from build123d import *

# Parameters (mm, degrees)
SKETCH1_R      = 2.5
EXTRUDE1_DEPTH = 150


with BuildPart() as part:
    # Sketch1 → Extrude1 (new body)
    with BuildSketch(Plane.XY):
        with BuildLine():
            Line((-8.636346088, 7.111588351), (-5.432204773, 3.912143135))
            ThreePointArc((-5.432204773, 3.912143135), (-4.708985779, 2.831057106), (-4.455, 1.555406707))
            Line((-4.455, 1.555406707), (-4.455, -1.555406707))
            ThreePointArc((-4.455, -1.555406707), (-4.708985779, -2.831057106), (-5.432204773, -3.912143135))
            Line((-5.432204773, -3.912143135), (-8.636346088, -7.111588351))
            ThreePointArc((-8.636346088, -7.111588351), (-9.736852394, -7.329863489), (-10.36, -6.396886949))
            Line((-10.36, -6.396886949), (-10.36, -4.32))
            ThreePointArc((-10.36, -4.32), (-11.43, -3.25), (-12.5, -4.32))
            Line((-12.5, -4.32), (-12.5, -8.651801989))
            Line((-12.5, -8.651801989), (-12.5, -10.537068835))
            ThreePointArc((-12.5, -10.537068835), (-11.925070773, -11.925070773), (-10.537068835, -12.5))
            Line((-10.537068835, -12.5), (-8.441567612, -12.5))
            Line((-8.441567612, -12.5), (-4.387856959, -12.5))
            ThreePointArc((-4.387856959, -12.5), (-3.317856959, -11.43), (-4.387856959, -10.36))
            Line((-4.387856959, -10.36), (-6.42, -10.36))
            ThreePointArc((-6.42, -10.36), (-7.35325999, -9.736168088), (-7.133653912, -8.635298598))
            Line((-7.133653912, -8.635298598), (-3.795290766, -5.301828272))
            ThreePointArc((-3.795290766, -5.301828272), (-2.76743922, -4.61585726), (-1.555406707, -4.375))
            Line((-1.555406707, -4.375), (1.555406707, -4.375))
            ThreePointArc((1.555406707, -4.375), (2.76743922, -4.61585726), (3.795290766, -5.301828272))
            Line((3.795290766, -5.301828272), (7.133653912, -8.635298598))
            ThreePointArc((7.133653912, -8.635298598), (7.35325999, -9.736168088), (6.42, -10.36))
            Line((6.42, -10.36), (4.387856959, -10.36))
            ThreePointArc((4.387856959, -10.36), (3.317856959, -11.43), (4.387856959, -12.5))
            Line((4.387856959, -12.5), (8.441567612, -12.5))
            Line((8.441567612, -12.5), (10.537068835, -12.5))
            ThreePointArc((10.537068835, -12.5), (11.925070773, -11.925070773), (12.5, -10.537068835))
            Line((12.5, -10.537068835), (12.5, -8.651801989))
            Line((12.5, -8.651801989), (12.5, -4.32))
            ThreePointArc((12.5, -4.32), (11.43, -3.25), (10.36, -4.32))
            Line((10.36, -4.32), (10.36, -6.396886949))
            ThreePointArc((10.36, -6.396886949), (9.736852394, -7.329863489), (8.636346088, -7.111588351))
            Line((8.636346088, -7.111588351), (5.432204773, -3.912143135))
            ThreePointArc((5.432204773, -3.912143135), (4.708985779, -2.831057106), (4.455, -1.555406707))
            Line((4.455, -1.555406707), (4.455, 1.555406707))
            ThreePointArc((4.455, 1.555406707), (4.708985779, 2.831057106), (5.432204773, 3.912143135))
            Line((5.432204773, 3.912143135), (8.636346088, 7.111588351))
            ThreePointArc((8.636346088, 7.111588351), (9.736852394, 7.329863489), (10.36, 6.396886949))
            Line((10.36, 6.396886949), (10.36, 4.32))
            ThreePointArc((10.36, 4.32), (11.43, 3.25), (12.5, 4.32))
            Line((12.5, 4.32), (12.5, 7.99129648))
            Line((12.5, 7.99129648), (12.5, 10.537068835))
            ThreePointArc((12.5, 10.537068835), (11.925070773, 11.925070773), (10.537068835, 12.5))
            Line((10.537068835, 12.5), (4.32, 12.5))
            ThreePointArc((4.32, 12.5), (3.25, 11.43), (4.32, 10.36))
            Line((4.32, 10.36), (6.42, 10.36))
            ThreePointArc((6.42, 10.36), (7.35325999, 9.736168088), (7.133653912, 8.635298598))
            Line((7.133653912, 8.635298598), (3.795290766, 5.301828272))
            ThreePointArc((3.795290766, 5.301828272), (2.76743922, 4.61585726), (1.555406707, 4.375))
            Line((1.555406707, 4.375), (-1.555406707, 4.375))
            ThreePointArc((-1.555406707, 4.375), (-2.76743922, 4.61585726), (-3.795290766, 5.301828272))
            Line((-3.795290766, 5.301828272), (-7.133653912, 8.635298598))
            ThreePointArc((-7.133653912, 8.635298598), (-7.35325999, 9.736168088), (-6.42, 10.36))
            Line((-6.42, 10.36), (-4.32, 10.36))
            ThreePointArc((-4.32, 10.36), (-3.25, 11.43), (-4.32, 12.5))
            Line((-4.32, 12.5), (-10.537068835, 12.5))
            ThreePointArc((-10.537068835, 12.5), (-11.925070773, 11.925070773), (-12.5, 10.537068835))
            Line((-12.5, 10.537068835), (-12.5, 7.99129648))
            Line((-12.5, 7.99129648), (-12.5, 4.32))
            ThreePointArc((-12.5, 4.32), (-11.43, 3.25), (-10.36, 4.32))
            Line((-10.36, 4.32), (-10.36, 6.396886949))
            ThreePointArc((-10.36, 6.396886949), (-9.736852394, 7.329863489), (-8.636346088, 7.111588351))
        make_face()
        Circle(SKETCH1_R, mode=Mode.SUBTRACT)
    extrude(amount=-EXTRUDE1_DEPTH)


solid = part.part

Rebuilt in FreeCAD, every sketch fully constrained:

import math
import FreeCAD as App
import Part
import Sketcher
from FreeCAD import Vector
Q = App.Units.Quantity

doc = App.newDocument("Part")
body = doc.addObject("PartDesign::Body", "Body")

sketch1 = body.newObject("Sketcher::SketchObject", "Sketch")
sketch1.AttachmentSupport = (doc.getObject("XY_Plane"), [""])
sketch1.MapMode = "FlatFace"
sketch1.addGeometry([
    Part.LineSegment(Vector(-8.636346, 7.111588, 0), Vector(-5.432205, 3.912143, 0)),
    Part.ArcOfCircle(Part.Circle(Vector(-7.785487, 1.555407, 0), Vector(0, 0, 1), 3.330487), math.radians(0), math.radians(45.042018)),
    Part.LineSegment(Vector(-4.455, 1.555407, 0), Vector(-4.455, -1.555407, 0)),
    Part.ArcOfCircle(Part.Circle(Vector(-7.785487, -1.555407, 0), Vector(0, 0, 1), 3.330487), math.radians(-45.042018), math.radians(0)),
    Part.LineSegment(Vector(-5.432205, -3.912143, 0), Vector(-8.636346, -7.111588, 0)),
    Part.ArcOfCircle(Part.Circle(Vector(-9.35, -6.396887, 0), Vector(0, 0, 1), 1.01), math.radians(-180), math.radians(-45.042018)),
    Part.LineSegment(Vector(-10.36, -6.396887, 0), Vector(-10.36, -4.32, 0)),
    Part.ArcOfCircle(Part.Circle(Vector(-11.43, -4.32, 0), Vector(0, 0, 1), 1.07), math.radians(0), math.radians(180)),
    Part.LineSegment(Vector(-12.5, -4.32, 0), Vector(-12.5, -10.537069, 0)),
    Part.ArcOfCircle(Part.Circle(Vector(-10.537069, -10.537069, 0), Vector(0, 0, 1), 1.962931), math.radians(180), math.radians(270)),
    Part.LineSegment(Vector(-10.537069, -12.5, 0), Vector(-4.387857, -12.5, 0)),
    Part.ArcOfCircle(Part.Circle(Vector(-4.387857, -11.43, 0), Vector(0, 0, 1), 1.07), math.radians(-90), math.radians(90)),
    Part.LineSegment(Vector(-4.387857, -10.36, 0), Vector(-6.42, -10.36, 0)),
    Part.ArcOfCircle(Part.Circle(Vector(-6.42, -9.35, 0), Vector(0, 0, 1), 1.01), math.radians(134.957982), math.radians(270)),
    Part.LineSegment(Vector(-7.133654, -8.635299, 0), Vector(-3.795291, -5.301828, 0)),
    Part.ArcOfCircle(Part.Circle(Vector(-1.555407, -7.545, 0), Vector(0, 0, 1), 3.17), math.radians(90), math.radians(134.957982)),
    Part.LineSegment(Vector(-1.555407, -4.375, 0), Vector(1.555407, -4.375, 0)),
    Part.ArcOfCircle(Part.Circle(Vector(1.555407, -7.545, 0), Vector(0, 0, 1), 3.17), math.radians(45.042018), math.radians(90)),
    Part.LineSegment(Vector(3.795291, -5.301828, 0), Vector(7.133654, -8.635299, 0)),
    Part.ArcOfCircle(Part.Circle(Vector(6.42, -9.35, 0), Vector(0, 0, 1), 1.01), math.radians(-90), math.radians(45.042018)),
    Part.LineSegment(Vector(6.42, -10.36, 0), Vector(4.387857, -10.36, 0)),
    Part.ArcOfCircle(Part.Circle(Vector(4.387857, -11.43, 0), Vector(0, 0, 1), 1.07), math.radians(90), math.radians(270)),
    Part.LineSegment(Vector(4.387857, -12.5, 0), Vector(10.537069, -12.5, 0)),
    Part.ArcOfCircle(Part.Circle(Vector(10.537069, -10.537069, 0), Vector(0, 0, 1), 1.962931), math.radians(-90), math.radians(0)),
    Part.LineSegment(Vector(12.5, -10.537069, 0), Vector(12.5, -4.32, 0)),
    Part.ArcOfCircle(Part.Circle(Vector(11.43, -4.32, 0), Vector(0, 0, 1), 1.07), math.radians(0), math.radians(180)),
    Part.LineSegment(Vector(10.36, -4.32, 0), Vector(10.36, -6.396887, 0)),
    Part.ArcOfCircle(Part.Circle(Vector(9.35, -6.396887, 0), Vector(0, 0, 1), 1.01), math.radians(-134.957982), math.radians(0)),
    Part.LineSegment(Vector(8.636346, -7.111588, 0), Vector(5.432205, -3.912143, 0)),
    Part.ArcOfCircle(Part.Circle(Vector(7.785487, -1.555407, 0), Vector(0, 0, 1), 3.330487), math.radians(180), math.radians(225.042018)),
    Part.LineSegment(Vector(4.455, -1.555407, 0), Vector(4.455, 1.555407, 0)),
    Part.ArcOfCircle(Part.Circle(Vector(7.785487, 1.555407, 0), Vector(0, 0, 1), 3.330487), math.radians(134.957982), math.radians(180)),
    Part.LineSegment(Vector(5.432205, 3.912143, 0), Vector(8.636346, 7.111588, 0)),
    Part.ArcOfCircle(Part.Circle(Vector(9.35, 6.396887, 0), Vector(0, 0, 1), 1.01), math.radians(0), math.radians(134.957982)),
    Part.LineSegment(Vector(10.36, 6.396887, 0), Vector(10.36, 4.32, 0)),
    Part.ArcOfCircle(Part.Circle(Vector(11.43, 4.32, 0), Vector(0, 0, 1), 1.07), math.radians(180), math.radians(360)),
    Part.LineSegment(Vector(12.5, 4.32, 0), Vector(12.5, 10.537069, 0)),
    Part.ArcOfCircle(Part.Circle(Vector(10.537069, 10.537069, 0), Vector(0, 0, 1), 1.962931), math.radians(0), math.radians(90)),
    Part.LineSegment(Vector(10.537069, 12.5, 0), Vector(4.32, 12.5, 0)),
    Part.ArcOfCircle(Part.Circle(Vector(4.32, 11.43, 0), Vector(0, 0, 1), 1.07), math.radians(90), math.radians(270)),
    Part.LineSegment(Vector(4.32, 10.36, 0), Vector(6.42, 10.36, 0)),
    Part.ArcOfCircle(Part.Circle(Vector(6.42, 9.35, 0), Vector(0, 0, 1), 1.01), math.radians(-45.042018), math.radians(90)),
    Part.LineSegment(Vector(7.133654, 8.635299, 0), Vector(3.795291, 5.301828, 0)),
    Part.ArcOfCircle(Part.Circle(Vector(1.555407, 7.545, 0), Vector(0, 0, 1), 3.17), math.radians(-90), math.radians(-45.042018)),
    Part.LineSegment(Vector(1.555407, 4.375, 0), Vector(-1.555407, 4.375, 0)),
    Part.ArcOfCircle(Part.Circle(Vector(-1.555407, 7.545, 0), Vector(0, 0, 1), 3.17), math.radians(-134.957982), math.radians(-90)),
    Part.LineSegment(Vector(-3.795291, 5.301828, 0), Vector(-7.133654, 8.635299, 0)),
    Part.ArcOfCircle(Part.Circle(Vector(-6.42, 9.35, 0), Vector(0, 0, 1), 1.01), math.radians(90), math.radians(225.042018)),
    Part.LineSegment(Vector(-6.42, 10.36, 0), Vector(-4.32, 10.36, 0)),
    Part.ArcOfCircle(Part.Circle(Vector(-4.32, 11.43, 0), Vector(0, 0, 1), 1.07), math.radians(-90), math.radians(90)),
    Part.LineSegment(Vector(-4.32, 12.5, 0), Vector(-10.537069, 12.5, 0)),
    Part.ArcOfCircle(Part.Circle(Vector(-10.537069, 10.537069, 0), Vector(0, 0, 1), 1.962931), math.radians(90), math.radians(180)),
    Part.LineSegment(Vector(-12.5, 10.537069, 0), Vector(-12.5, 4.32, 0)),
    Part.ArcOfCircle(Part.Circle(Vector(-11.43, 4.32, 0), Vector(0, 0, 1), 1.07), math.radians(180), math.radians(360)),
    Part.LineSegment(Vector(-10.36, 4.32, 0), Vector(-10.36, 6.396887, 0)),
    Part.ArcOfCircle(Part.Circle(Vector(-9.35, 6.396887, 0), Vector(0, 0, 1), 1.01), math.radians(45.042018), math.radians(180)),
    Part.Circle(Vector(0, 0, 0), Vector(0, 0, 1), 2.5),
], False)
sketch1.addConstraint([
    Sketcher.Constraint("Tangent", 0, 2, 1, 2),
    Sketcher.Constraint("Tangent", 1, 1, 2, 1),
    Sketcher.Constraint("Tangent", 2, 2, 3, 2),
    Sketcher.Constraint("Tangent", 3, 1, 4, 1),
    Sketcher.Constraint("Tangent", 4, 2, 5, 2),
    Sketcher.Constraint("Tangent", 5, 1, 6, 1),
    Sketcher.Constraint("Tangent", 6, 2, 7, 1),
    Sketcher.Constraint("Tangent", 7, 2, 8, 1),
    Sketcher.Constraint("Tangent", 8, 2, 9, 1),
    Sketcher.Constraint("Tangent", 9, 2, 10, 1),
    Sketcher.Constraint("Tangent", 10, 2, 11, 1),
    Sketcher.Constraint("Tangent", 11, 2, 12, 1),
    Sketcher.Constraint("Tangent", 12, 2, 13, 2),
    Sketcher.Constraint("Tangent", 13, 1, 14, 1),
    Sketcher.Constraint("Tangent", 14, 2, 15, 2),
    Sketcher.Constraint("Tangent", 15, 1, 16, 1),
    Sketcher.Constraint("Tangent", 16, 2, 17, 2),
    Sketcher.Constraint("Tangent", 17, 1, 18, 1),
    Sketcher.Constraint("Tangent", 18, 2, 19, 2),
    Sketcher.Constraint("Tangent", 19, 1, 20, 1),
    Sketcher.Constraint("Tangent", 20, 2, 21, 1),
    Sketcher.Constraint("Tangent", 21, 2, 22, 1),
    Sketcher.Constraint("Tangent", 22, 2, 23, 1),
    Sketcher.Constraint("Tangent", 23, 2, 24, 1),
    Sketcher.Constraint("Tangent", 24, 2, 25, 1),
    Sketcher.Constraint("Tangent", 25, 2, 26, 1),
    Sketcher.Constraint("Tangent", 26, 2, 27, 2),
    Sketcher.Constraint("Tangent", 27, 1, 28, 1),
    Sketcher.Constraint("Tangent", 28, 2, 29, 2),
    Sketcher.Constraint("Tangent", 29, 1, 30, 1),
    Sketcher.Constraint("Tangent", 30, 2, 31, 2),
    Sketcher.Constraint("Tangent", 31, 1, 32, 1),
    Sketcher.Constraint("Tangent", 32, 2, 33, 2),
    Sketcher.Constraint("Tangent", 33, 1, 34, 1),
    Sketcher.Constraint("Tangent", 34, 2, 35, 1),
    Sketcher.Constraint("Tangent", 35, 2, 36, 1),
    Sketcher.Constraint("Tangent", 36, 2, 37, 1),
    Sketcher.Constraint("Tangent", 37, 2, 38, 1),
    Sketcher.Constraint("Tangent", 38, 2, 39, 1),
    Sketcher.Constraint("Tangent", 39, 2, 40, 1),
    Sketcher.Constraint("Tangent", 40, 2, 41, 2),
    Sketcher.Constraint("Tangent", 41, 1, 42, 1),
    Sketcher.Constraint("Tangent", 42, 2, 43, 2),
    Sketcher.Constraint("Tangent", 43, 1, 44, 1),
    Sketcher.Constraint("Tangent", 44, 2, 45, 2),
    Sketcher.Constraint("Tangent", 45, 1, 46, 1),
    Sketcher.Constraint("Tangent", 46, 2, 47, 2),
    Sketcher.Constraint("Tangent", 47, 1, 48, 1),
    Sketcher.Constraint("Tangent", 48, 2, 49, 1),
    Sketcher.Constraint("Tangent", 49, 2, 50, 1),
    Sketcher.Constraint("Tangent", 50, 2, 51, 1),
    Sketcher.Constraint("Tangent", 51, 2, 52, 1),
    Sketcher.Constraint("Tangent", 52, 2, 53, 1),
    Sketcher.Constraint("Tangent", 53, 2, 54, 1),
    Sketcher.Constraint("Tangent", 54, 2, 55, 2),
    Sketcher.Constraint("Tangent", 55, 1, 0, 1),
    Sketcher.Constraint("Vertical", 2),
    Sketcher.Constraint("Vertical", 6),
    Sketcher.Constraint("Vertical", 8),
    Sketcher.Constraint("Horizontal", 10),
    Sketcher.Constraint("Horizontal", 12),
    Sketcher.Constraint("Horizontal", 16),
    Sketcher.Constraint("Horizontal", 20),
    Sketcher.Constraint("Horizontal", 22),
    Sketcher.Constraint("Vertical", 24),
    Sketcher.Constraint("Vertical", 26),
    Sketcher.Constraint("Vertical", 30),
    Sketcher.Constraint("Vertical", 34),
    Sketcher.Constraint("Vertical", 36),
    Sketcher.Constraint("Horizontal", 38),
    Sketcher.Constraint("Horizontal", 40),
    Sketcher.Constraint("Horizontal", 44),
    Sketcher.Constraint("Horizontal", 48),
    Sketcher.Constraint("Horizontal", 50),
    Sketcher.Constraint("Vertical", 52),
    Sketcher.Constraint("Vertical", 54),
    Sketcher.Constraint("Coincident", 56, 3, -1, 1),
    Sketcher.Constraint("Equal", 1, 3),
    Sketcher.Constraint("Equal", 7, 11),
    Sketcher.Constraint("Equal", 5, 13),
    Sketcher.Constraint("Equal", 15, 17),
    Sketcher.Constraint("Equal", 13, 19),
    Sketcher.Constraint("Equal", 11, 21),
    Sketcher.Constraint("Equal", 9, 23),
    Sketcher.Constraint("Equal", 21, 25),
    Sketcher.Constraint("Equal", 19, 27),
    Sketcher.Constraint("Equal", 3, 29),
    Sketcher.Constraint("Equal", 29, 31),
    Sketcher.Constraint("Equal", 27, 33),
    Sketcher.Constraint("Equal", 25, 35),
    Sketcher.Constraint("Equal", 23, 37),
    Sketcher.Constraint("Equal", 35, 39),
    Sketcher.Constraint("Equal", 33, 41),
    Sketcher.Constraint("Equal", 17, 43),
    Sketcher.Constraint("Equal", 43, 45),
    Sketcher.Constraint("Equal", 41, 47),
    Sketcher.Constraint("Equal", 39, 49),
    Sketcher.Constraint("Equal", 37, 51),
    Sketcher.Constraint("Equal", 49, 53),
    Sketcher.Constraint("Equal", 47, 55),
    Sketcher.Constraint("Symmetric", 1, 3, 29, 3, -1, 1),
    Sketcher.Constraint("Symmetric", 5, 3, 33, 3, -1, 1),
    Sketcher.Constraint("Symmetric", 13, 3, 41, 3, -1, 1),
    Sketcher.Constraint("Symmetric", 15, 3, 43, 3, -1, 1),
    Sketcher.Constraint("Symmetric", 19, 3, 47, 3, -1, 1),
    Sketcher.Constraint("Symmetric", 25, 3, 53, 3, -1, 1),
    Sketcher.Constraint("Symmetric", 13, 3, 19, 3, -2),
    Sketcher.Constraint("Symmetric", 7, 3, 25, 3, -2),
    Sketcher.Constraint("Symmetric", 4, 2, 27, 1, -2),
    Sketcher.Constraint("Symmetric", 0, 2, 31, 1, -2),
    Sketcher.Constraint("Parallel", 4, 14),
    Sketcher.Constraint("Parallel", 0, 18),
    Sketcher.Constraint("Parallel", 28, 46),
    Sketcher.Constraint("Horizontal", 35, 3, 53, 3),
    Sketcher.Constraint("Equal", 12, 20),
    Sketcher.Constraint("Equal", 40, 48),
    Sketcher.Constraint("Equal", 44, 2),
    Sketcher.Constraint("Equal", 50, 8),
    Sketcher.Constraint("Diameter", 56, Q("5 mm")),
    Sketcher.Constraint("Radius", 5, Q("1.01 mm")),
    Sketcher.Constraint("Radius", 7, Q("1.07 mm")),
    Sketcher.Constraint("Radius", 15, Q("3.17 mm")),
    Sketcher.Constraint("DistanceX", 40, 1, 40, 2, Q("2.1 mm")),
    Sketcher.Constraint("DistanceX", 7, 2, -1, 1, Q("12.5 mm")),
    Sketcher.Constraint("DistanceY", 9, 2, -1, 1, Q("12.5 mm")),
    Sketcher.Constraint("DistanceY", 7, 3, -1, 1, Q("4.32 mm")),
    Sketcher.Constraint("Radius", 9, Q("1.962931 mm")),
    Sketcher.Constraint("DistanceY", 15, 3, -1, 1, Q("7.545 mm")),
    Sketcher.Constraint("DistanceX", 1, 1, -1, 1, Q("4.455 mm")),
    Sketcher.Constraint("Radius", 1, Q("3.330487 mm")),
    Sketcher.Constraint("Distance", 14, Q("4.7177 mm")),
    Sketcher.Constraint("DistanceX", 10, 1, 10, 2, Q("6.149212 mm")),
])
pad1 = body.newObject("PartDesign::Pad", "Pad")
pad1.Profile = sketch1
pad1.Length = 150
pad1.Reversed = True

doc.recompute()
